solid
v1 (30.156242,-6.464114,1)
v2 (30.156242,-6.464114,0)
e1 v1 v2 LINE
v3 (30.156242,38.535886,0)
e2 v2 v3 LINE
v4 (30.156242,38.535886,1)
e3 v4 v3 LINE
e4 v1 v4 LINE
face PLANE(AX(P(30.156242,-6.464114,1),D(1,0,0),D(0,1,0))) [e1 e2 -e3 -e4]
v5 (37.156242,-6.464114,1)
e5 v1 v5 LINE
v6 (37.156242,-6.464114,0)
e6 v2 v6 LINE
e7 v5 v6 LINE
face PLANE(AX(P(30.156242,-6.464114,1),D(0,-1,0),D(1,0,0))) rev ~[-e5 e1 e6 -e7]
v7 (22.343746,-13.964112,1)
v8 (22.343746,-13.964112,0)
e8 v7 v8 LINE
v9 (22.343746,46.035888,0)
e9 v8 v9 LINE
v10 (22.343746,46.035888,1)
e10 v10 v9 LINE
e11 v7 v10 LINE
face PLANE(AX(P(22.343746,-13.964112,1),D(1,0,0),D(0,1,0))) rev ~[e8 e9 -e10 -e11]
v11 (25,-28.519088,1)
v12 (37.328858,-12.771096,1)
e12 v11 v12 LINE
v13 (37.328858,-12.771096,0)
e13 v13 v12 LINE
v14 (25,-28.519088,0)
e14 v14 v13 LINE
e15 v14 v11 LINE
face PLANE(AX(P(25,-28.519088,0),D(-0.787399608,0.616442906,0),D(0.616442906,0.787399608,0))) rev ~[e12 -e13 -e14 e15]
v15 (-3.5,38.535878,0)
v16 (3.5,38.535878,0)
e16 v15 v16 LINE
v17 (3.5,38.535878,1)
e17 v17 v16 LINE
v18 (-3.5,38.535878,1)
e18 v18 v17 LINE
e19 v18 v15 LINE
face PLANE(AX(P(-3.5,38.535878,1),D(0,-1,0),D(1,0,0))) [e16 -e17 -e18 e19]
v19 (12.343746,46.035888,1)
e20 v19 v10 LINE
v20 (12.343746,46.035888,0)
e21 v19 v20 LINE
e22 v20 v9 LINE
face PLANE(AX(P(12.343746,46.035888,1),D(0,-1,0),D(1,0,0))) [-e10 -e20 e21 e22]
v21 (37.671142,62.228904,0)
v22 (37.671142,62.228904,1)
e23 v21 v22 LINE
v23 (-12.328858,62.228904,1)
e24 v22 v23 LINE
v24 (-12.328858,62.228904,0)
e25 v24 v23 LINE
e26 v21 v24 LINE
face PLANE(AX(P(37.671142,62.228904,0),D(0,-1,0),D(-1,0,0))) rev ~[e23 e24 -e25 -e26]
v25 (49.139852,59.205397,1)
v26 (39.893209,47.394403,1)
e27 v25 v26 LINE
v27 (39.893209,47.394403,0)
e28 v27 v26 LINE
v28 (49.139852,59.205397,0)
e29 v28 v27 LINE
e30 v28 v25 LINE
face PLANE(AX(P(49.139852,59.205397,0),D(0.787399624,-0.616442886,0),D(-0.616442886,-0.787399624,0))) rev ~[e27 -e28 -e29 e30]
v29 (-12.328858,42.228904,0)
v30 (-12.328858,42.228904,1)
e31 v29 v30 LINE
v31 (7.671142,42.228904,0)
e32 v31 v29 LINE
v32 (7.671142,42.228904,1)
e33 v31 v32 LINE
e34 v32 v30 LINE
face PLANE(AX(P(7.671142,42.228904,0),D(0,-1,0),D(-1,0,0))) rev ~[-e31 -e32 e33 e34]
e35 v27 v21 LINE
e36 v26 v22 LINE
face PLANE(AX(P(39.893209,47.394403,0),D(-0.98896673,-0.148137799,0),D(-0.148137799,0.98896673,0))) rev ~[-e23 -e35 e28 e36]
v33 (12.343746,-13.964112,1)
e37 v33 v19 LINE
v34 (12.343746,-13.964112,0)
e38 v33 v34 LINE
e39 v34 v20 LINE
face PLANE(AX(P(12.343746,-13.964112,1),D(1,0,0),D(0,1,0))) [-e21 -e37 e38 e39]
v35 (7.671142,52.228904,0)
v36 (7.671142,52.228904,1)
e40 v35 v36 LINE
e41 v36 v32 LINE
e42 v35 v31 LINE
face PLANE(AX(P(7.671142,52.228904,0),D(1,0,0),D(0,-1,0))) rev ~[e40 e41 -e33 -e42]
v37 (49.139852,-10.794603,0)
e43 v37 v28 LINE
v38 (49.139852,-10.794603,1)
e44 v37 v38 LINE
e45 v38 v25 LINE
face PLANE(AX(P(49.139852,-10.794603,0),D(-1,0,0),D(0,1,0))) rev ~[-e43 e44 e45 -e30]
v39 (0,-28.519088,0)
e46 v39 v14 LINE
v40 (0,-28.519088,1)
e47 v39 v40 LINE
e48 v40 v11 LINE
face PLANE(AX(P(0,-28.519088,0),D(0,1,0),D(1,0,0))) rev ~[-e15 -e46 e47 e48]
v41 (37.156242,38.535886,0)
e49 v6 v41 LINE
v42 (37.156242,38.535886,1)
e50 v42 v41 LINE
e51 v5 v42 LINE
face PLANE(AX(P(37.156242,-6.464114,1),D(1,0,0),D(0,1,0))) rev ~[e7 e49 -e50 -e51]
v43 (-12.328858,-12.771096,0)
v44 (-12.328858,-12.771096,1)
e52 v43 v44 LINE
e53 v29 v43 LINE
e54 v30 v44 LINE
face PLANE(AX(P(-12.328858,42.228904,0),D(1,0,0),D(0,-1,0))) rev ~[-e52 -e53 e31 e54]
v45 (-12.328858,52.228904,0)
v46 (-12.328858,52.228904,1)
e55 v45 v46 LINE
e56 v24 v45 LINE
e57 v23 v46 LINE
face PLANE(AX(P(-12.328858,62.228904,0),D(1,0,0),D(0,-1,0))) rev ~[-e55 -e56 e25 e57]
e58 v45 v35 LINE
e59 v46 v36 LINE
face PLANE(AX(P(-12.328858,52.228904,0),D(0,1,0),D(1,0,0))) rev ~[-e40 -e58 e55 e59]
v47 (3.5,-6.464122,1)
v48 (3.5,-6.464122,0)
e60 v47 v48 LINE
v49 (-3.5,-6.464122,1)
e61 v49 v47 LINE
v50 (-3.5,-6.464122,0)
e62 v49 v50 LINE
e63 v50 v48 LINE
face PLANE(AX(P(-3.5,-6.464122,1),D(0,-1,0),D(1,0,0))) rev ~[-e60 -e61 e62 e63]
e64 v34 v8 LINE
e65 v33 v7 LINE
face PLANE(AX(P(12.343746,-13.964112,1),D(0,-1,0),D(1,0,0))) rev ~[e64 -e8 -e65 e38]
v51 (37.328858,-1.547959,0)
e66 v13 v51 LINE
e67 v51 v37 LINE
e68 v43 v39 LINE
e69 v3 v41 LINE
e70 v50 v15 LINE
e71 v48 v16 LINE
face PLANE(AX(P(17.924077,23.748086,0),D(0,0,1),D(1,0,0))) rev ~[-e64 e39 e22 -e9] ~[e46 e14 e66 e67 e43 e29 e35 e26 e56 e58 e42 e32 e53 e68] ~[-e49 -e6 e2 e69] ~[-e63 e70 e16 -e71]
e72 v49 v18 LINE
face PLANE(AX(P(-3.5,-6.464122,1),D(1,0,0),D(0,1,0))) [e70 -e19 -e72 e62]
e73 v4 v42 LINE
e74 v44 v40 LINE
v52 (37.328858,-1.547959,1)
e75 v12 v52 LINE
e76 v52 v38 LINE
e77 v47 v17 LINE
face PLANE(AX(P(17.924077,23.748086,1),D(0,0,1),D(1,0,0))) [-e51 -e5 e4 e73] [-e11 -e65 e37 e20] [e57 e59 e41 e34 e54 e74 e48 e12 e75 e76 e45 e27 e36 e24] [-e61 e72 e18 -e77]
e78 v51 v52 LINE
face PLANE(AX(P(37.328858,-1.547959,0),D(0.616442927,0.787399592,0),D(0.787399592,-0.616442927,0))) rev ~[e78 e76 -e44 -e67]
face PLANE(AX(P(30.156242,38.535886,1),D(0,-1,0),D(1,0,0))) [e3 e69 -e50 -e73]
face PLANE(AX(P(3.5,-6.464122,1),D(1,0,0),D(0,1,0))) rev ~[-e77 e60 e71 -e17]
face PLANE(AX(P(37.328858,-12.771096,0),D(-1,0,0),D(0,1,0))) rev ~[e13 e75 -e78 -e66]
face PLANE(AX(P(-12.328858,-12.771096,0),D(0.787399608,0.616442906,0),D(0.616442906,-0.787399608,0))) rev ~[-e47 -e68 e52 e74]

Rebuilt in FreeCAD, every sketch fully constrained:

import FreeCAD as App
import Part
import Sketcher
Q = App.Units.Quantity


def add_polygon(sketch, points):
    """Adds a closed chain of lines whose ends are joined by coincident constraints."""
    first, n = sketch.GeometryCount, len(points)
    for a, b in zip(points, points[1:] + points[:1]):
        sketch.addGeometry(Part.LineSegment(App.Vector(*a, 0), App.Vector(*b, 0)), False)
    for i in range(n):
        sketch.addConstraint(Sketcher.Constraint("Coincident", first + i, 2, first + (i + 1) % n, 1))

doc = App.newDocument("Part")
body = doc.addObject("PartDesign::Body", "Body")

sketch1 = doc.addObject("Sketcher::SketchObject", "Sketch")
body.addObject(sketch1)
sketch1.AttachmentSupport = (doc.XY_Plane, [""])
sketch1.MapMode = "FlatFace"
add_polygon(sketch1, [(49, 59), (40, 47), (38, 62), (-12, 62), (-12, 52), (8, 52), (8, 42), (-12, 42), (-12, -13), (0, -29), (25, -29), (37, -13), (37, -2), (49, -11)])
sketch1.addConstraint([
    Sketcher.Constraint("Horizontal", 2),
    Sketcher.Constraint("Vertical", 3),
    Sketcher.Constraint("Horizontal", 4),
    Sketcher.Constraint("Vertical", 5),
    Sketcher.Constraint("Horizontal", 6),
    Sketcher.Constraint("Vertical", 7),
    Sketcher.Constraint("Horizontal", 9),
    Sketcher.Constraint("Vertical", 11),
    Sketcher.Constraint("Vertical", 13),
    Sketcher.Constraint("PointOnObject", 8, 2, -2),
    Sketcher.Constraint("Parallel", 0, 10),
    Sketcher.Constraint("Perpendicular", 10, 12),
    Sketcher.Constraint("Horizontal", 7, 2, 10, 2),
    Sketcher.Constraint("Vertical", 3, 2, 6, 2),
    Sketcher.Constraint("Equal", 3, 5),
    Sketcher.Constraint("Equal", 0, 1),
    Sketcher.Constraint("Equal", 8, 10),
    Sketcher.Constraint("Equal", 1, 12),
    Sketcher.Constraint("DistanceX", 2, 2, 2, 1, Q("50 mm")),
    Sketcher.Constraint("DistanceX", 4, 1, 4, 2, Q("20 mm")),
    Sketcher.Constraint("DistanceX", 9, 1, 9, 2, Q("25 mm")),
    Sketcher.Constraint("DistanceY", 3, 2, 3, 1, Q("10 mm")),
    Sketcher.Constraint("DistanceY", 7, 2, 7, 1, Q("55 mm")),
    Sketcher.Constraint("DistanceY", 13, 1, 13, 2, Q("70 mm")),
    Sketcher.Constraint("Distance", 0, Q("15 mm")),
    Sketcher.Constraint("Distance", 8, Q("20 mm")),
    Sketcher.Constraint("DistanceY", 0, 2, 1, 2, Q("14.834501 mm")),
    Sketcher.Constraint("DistanceY", 8, 2, -1, 1, Q("28.519088 mm")),
])
pad1 = doc.addObject("PartDesign::Pad", "Pad")
body.addObject(pad1)
pad1.Profile = sketch1
pad1.Length = 1

sketch2 = doc.addObject("Sketcher::SketchObject", "Sketch001")
body.addObject(sketch2)
sketch2.AttachmentSupport = (doc.XY_Plane, [""])
sketch2.MapMode = "FlatFace"
sketch2.AttachmentOffset = App.Placement(App.Vector(0, 0, 1), App.Rotation())
add_polygon(sketch2, [(12, 46), (12, -14), (22, -14), (22, 46)])
add_polygon(sketch2, [(-4, 39), (-4, -6), (4, -6), (4, 39)])
add_polygon(sketch2, [(30, 39), (30, -6), (37, -6), (37, 39)])
sketch2.addConstraint([
    Sketcher.Constraint("Vertical", 0),
    Sketcher.Constraint("Horizontal", 1),
    Sketcher.Constraint("Vertical", 2),
    Sketcher.Constraint("Horizontal", 3),
    Sketcher.Constraint("Vertical", 4),
    Sketcher.Constraint("Horizontal", 5),
    Sketcher.Constraint("Vertical", 6),
    Sketcher.Constraint("Horizontal", 7),
    Sketcher.Constraint("Vertical", 8),
    Sketcher.Constraint("Horizontal", 9),
    Sketcher.Constraint("Vertical", 10),
    Sketcher.Constraint("Horizontal", 11),
    Sketcher.Constraint("Equal", 7, 9),
    Sketcher.Constraint("Equal", 6, 8),
    Sketcher.Constraint("DistanceX", 1, 1, 1, 2, Q("10 mm")),
    Sketcher.Constraint("DistanceX", 5, 1, 5, 2, Q("7 mm")),
    Sketcher.Constraint("DistanceY", 0, 2, 0, 1, Q("60 mm")),
    Sketcher.Constraint("DistanceY", 4, 2, 4, 1, Q("45 mm")),
    Sketcher.Constraint("DistanceX", 4, 2, -1, 1, Q("3.5 mm")),
    Sketcher.Constraint("DistanceY", 4, 2, -1, 1, Q("6.464122 mm")),
    Sketcher.Constraint("DistanceX", -1, 1, 8, 2, Q("30.156242 mm")),
    Sketcher.Constraint("DistanceY", 0, 2, 4, 2, Q("7.49999 mm")),
    Sketcher.Constraint("DistanceX", -1, 1, 0, 2, Q("12.343746 mm")),
    Sketcher.Constraint("DistanceY", 8, 2, -1, 1, Q("6.464114 mm")),
])
pocket1 = doc.addObject("PartDesign::Pocket", "Pocket")
body.addObject(pocket1)
pocket1.Profile = sketch2
pocket1.Length = 25

doc.recompute()
